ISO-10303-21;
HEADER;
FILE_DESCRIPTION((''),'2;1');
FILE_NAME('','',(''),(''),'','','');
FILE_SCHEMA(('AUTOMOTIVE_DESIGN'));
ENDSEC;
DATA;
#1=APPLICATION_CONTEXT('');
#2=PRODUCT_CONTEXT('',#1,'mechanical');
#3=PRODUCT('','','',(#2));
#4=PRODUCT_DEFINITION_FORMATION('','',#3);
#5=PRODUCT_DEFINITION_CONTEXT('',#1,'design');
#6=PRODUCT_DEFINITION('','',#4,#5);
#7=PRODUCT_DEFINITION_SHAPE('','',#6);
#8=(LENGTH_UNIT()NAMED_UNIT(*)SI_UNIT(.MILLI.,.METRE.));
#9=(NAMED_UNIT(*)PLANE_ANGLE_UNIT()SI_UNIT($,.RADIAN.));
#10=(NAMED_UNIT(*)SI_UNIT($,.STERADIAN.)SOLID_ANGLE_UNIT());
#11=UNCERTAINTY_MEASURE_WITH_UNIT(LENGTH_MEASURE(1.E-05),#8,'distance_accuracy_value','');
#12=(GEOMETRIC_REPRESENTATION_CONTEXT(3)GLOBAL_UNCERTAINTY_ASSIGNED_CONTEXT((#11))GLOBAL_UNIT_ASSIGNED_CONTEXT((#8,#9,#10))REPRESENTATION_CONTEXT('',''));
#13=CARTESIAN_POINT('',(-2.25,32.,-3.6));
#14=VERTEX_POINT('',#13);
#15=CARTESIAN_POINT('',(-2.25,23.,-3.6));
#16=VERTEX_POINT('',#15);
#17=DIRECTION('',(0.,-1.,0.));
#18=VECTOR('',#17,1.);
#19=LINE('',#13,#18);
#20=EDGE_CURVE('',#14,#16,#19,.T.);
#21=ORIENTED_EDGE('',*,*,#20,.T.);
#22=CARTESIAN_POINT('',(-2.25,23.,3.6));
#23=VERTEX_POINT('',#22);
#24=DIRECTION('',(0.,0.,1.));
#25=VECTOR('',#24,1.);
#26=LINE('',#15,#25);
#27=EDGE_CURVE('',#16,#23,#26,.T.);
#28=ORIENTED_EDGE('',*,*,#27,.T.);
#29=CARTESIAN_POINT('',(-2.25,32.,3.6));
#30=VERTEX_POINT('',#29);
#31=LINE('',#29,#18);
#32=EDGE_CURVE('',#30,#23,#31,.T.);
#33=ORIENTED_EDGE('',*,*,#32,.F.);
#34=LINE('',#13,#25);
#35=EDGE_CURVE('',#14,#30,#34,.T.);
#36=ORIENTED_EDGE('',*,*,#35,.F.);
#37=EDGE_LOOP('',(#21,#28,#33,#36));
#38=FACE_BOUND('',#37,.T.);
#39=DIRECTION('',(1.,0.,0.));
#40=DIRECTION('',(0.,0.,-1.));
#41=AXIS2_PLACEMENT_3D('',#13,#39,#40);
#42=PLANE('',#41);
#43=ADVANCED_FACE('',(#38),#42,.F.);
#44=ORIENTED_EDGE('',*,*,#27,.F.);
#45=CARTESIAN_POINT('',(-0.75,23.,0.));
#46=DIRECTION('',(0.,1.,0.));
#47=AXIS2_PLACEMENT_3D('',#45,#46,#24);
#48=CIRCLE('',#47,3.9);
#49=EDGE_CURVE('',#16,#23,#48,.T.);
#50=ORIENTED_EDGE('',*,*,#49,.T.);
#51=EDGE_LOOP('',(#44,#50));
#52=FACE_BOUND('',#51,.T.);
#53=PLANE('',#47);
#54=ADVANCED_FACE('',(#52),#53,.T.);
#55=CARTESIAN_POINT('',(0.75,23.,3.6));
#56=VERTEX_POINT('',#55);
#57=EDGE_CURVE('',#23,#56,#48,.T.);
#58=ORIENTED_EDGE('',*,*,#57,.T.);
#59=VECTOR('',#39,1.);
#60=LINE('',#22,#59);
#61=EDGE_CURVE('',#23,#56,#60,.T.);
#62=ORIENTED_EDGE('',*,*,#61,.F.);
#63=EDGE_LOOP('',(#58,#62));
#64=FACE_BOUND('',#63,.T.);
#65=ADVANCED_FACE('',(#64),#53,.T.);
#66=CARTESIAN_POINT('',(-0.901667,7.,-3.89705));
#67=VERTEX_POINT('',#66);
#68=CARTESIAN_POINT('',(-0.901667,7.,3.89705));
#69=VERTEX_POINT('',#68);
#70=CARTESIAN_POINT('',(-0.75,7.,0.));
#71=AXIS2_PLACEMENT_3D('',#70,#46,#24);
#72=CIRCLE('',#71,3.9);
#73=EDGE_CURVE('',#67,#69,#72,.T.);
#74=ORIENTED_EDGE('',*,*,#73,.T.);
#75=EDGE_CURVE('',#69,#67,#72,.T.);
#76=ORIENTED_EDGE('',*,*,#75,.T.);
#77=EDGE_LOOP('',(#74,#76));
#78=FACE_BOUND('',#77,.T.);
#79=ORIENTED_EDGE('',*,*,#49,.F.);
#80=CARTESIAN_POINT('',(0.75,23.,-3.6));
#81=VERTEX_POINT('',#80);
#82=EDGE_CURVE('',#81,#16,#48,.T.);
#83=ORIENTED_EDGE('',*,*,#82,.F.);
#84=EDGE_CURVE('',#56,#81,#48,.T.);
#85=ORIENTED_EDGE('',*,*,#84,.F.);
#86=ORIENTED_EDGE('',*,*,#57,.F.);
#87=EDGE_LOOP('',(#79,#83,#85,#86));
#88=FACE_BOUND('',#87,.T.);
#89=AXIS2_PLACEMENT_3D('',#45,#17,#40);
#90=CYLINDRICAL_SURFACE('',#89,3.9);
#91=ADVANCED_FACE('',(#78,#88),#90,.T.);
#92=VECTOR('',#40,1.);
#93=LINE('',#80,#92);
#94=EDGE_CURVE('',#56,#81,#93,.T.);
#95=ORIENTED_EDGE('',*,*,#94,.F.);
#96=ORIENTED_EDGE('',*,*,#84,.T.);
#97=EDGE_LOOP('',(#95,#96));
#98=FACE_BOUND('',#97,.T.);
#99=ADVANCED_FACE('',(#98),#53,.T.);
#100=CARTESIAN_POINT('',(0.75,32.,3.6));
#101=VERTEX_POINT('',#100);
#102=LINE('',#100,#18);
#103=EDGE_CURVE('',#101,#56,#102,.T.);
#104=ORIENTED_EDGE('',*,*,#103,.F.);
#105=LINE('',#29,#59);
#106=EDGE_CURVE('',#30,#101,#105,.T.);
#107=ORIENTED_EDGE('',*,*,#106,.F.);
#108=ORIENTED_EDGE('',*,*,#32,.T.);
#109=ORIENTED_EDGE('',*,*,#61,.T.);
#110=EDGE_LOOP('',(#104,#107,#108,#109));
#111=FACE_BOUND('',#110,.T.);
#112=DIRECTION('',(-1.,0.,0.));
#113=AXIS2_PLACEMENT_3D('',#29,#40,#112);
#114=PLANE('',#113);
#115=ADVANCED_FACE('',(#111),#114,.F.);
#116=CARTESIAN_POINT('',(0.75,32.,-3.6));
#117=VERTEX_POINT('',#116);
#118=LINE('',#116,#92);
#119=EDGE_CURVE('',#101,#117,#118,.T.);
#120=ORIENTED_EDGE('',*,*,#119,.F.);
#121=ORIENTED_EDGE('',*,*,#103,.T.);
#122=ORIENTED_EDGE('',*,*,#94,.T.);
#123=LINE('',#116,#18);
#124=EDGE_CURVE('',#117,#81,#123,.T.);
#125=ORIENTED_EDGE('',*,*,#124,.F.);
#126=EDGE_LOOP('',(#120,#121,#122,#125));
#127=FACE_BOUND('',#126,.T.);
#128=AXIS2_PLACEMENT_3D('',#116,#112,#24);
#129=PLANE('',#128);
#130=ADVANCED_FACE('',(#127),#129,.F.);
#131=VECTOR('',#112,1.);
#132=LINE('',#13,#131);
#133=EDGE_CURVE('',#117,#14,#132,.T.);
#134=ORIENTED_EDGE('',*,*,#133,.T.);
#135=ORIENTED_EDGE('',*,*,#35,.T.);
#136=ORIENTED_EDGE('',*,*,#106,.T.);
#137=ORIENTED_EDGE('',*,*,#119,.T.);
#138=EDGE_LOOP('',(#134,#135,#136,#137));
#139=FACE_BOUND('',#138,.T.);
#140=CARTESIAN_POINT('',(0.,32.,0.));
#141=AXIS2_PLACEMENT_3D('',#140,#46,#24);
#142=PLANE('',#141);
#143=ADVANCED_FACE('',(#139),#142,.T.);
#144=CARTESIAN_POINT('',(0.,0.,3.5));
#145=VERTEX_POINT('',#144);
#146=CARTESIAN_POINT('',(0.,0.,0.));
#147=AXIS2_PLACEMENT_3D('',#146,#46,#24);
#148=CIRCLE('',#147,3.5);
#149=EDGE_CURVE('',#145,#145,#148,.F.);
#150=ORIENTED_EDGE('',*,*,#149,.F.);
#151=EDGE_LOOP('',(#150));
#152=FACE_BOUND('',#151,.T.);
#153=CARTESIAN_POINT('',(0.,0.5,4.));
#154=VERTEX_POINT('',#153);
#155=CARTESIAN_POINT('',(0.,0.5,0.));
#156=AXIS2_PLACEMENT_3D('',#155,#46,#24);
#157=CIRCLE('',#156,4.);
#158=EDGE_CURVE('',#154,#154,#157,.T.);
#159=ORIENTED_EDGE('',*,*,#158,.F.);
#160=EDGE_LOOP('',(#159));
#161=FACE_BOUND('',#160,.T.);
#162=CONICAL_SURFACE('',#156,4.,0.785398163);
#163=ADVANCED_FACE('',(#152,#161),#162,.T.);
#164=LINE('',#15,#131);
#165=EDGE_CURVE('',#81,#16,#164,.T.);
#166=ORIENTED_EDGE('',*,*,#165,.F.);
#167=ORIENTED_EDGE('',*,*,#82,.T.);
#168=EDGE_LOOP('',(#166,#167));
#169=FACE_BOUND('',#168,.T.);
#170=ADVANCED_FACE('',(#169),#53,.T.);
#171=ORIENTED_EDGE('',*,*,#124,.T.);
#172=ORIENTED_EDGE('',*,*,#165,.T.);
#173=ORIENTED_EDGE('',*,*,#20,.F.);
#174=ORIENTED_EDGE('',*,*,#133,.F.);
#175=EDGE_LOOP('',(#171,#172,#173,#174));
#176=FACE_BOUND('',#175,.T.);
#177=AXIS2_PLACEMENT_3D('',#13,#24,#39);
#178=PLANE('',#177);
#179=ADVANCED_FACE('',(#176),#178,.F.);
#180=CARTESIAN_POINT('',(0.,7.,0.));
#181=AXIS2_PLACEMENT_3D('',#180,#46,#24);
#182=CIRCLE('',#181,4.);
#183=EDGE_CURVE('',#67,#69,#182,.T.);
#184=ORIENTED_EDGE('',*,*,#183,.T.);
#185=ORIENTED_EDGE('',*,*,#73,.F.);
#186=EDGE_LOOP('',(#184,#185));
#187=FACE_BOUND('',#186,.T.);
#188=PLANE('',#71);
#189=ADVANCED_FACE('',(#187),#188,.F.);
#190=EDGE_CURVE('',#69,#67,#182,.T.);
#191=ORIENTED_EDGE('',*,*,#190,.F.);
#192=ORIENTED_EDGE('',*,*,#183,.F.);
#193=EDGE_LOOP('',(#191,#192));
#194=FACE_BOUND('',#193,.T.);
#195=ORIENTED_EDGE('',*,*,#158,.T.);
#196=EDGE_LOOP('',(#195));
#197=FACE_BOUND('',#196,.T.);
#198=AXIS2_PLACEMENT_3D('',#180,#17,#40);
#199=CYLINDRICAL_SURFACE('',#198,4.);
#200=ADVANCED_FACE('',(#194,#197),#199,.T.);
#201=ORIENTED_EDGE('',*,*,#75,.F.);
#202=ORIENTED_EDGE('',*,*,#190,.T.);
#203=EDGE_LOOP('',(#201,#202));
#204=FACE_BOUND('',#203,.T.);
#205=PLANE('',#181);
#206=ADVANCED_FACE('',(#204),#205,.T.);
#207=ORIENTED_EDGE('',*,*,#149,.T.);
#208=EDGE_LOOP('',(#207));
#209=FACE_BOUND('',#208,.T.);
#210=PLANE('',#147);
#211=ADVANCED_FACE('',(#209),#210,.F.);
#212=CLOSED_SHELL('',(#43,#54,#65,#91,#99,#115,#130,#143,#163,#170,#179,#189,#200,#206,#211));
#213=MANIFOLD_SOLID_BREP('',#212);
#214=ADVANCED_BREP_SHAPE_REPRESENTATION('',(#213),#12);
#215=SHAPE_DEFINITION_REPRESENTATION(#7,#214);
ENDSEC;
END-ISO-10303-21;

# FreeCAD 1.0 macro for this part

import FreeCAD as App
import Part
import Sketcher


def edges_at(feature, points):
    """Names of the edges that pass closest to the given points."""
    edges = feature.Shape.Edges
    near = lambda p: min(range(len(edges)), key=lambda i: edges[i].distToShape(Part.Vertex(*p))[0])
    return sorted({f"Edge{near(p) + 1}" for p in points})

doc = App.newDocument("Part")
body = doc.addObject("PartDesign::Body", "Body")

# Sketch on XZ plane
sketch1 = body.newObject("Sketcher::SketchObject", "Sketch")
sketch1.AttachmentSupport = (doc.getObject("XZ_Plane"), [""])
sketch1.MapMode = "FlatFace"
sketch1.addGeometry(Part.Circle(App.Vector(0, 0, 0), App.Vector(0, 0, 1), 4), False)
sketch1.addConstraint(Sketcher.Constraint("Coincident", 0, 3, -1, 1))
sketch1.addConstraint(Sketcher.Constraint("Diameter", 0, 8.0))
pad1 = body.newObject("PartDesign::Pad", "Pad")
pad1.Profile = sketch1
pad1.Length = 7
pad1.Reversed = True

# Sketch on XZ plane
sketch2 = body.newObject("Sketcher::SketchObject", "Sketch001")
sketch2.AttachmentSupport = (doc.getObject("XZ_Plane"), [""])
sketch2.MapMode = "FlatFace"
sketch2.AttachmentOffset = App.Placement(App.Vector(0, 0, -7), App.Rotation())
sketch2.addGeometry(Part.Circle(App.Vector(-0.8, 0, 0), App.Vector(0, 0, 1), 3.9), False)
sketch2.addConstraint(Sketcher.Constraint("PointOnObject", 0, 3, -1))
sketch2.addConstraint(Sketcher.Constraint("Diameter", 0, 7.8))
sketch2.addConstraint(Sketcher.Constraint("DistanceX", 0, 3, -1, 1, 0.75))
pad2 = body.newObject("PartDesign::Pad", "Pad001")
pad2.Profile = sketch2
pad2.Length = 16
pad2.Reversed = True
doc.recompute()

chamfer = body.newObject("PartDesign::Chamfer", "Chamfer")
chamfer.Base = (pad2, edges_at(pad2, [(0, 0, -4)]))
chamfer.Size = 0.5

# Sketch on XZ plane
sketch3 = body.newObject("Sketcher::SketchObject", "Sketch002")
sketch3.AttachmentSupport = (doc.getObject("XZ_Plane"), [""])
sketch3.MapMode = "FlatFace"
sketch3.AttachmentOffset = App.Placement(App.Vector(0, 0, -23), App.Rotation())
sketch3.addGeometry(Part.LineSegment(App.Vector(-2.2, -3.6, 0), App.Vector(-2.2, 3.6, 0)), False)
sketch3.addGeometry(Part.LineSegment(App.Vector(-2.2, 3.6, 0), App.Vector(0.8, 3.6, 0)), False)
sketch3.addGeometry(Part.LineSegment(App.Vector(0.8, 3.6, 0), App.Vector(0.8, -3.6, 0)), False)
sketch3.addGeometry(Part.LineSegment(App.Vector(0.8, -3.6, 0), App.Vector(-2.2, -3.6, 0)), False)
sketch3.addConstraint(Sketcher.Constraint("Coincident", 0, 2, 1, 1))
sketch3.addConstraint(Sketcher.Constraint("Coincident", 1, 2, 2, 1))
sketch3.addConstraint(Sketcher.Constraint("Coincident", 2, 2, 3, 1))
sketch3.addConstraint(Sketcher.Constraint("Coincident", 3, 2, 0, 1))
sketch3.addConstraint(Sketcher.Constraint("Vertical", 0))
sketch3.addConstraint(Sketcher.Constraint("Horizontal", 1))
sketch3.addConstraint(Sketcher.Constraint("Vertical", 2))
sketch3.addConstraint(Sketcher.Constraint("Horizontal", 3))
sketch3.addConstraint(Sketcher.Constraint("DistanceX", 1, 1, 1, 2, 3.0))
sketch3.addConstraint(Sketcher.Constraint("DistanceY", 0, 1, 0, 2, 7.2))
sketch3.addConstraint(Sketcher.Constraint("DistanceY", -1, 1, 0, 2, 3.6))
sketch3.addConstraint(Sketcher.Constraint("DistanceX", 0, 2, -1, 1, 2.25))
pad3 = body.newObject("PartDesign::Pad", "Pad002")
pad3.Profile = sketch3
pad3.Length = 9
pad3.Reversed = True

doc.recompute()
